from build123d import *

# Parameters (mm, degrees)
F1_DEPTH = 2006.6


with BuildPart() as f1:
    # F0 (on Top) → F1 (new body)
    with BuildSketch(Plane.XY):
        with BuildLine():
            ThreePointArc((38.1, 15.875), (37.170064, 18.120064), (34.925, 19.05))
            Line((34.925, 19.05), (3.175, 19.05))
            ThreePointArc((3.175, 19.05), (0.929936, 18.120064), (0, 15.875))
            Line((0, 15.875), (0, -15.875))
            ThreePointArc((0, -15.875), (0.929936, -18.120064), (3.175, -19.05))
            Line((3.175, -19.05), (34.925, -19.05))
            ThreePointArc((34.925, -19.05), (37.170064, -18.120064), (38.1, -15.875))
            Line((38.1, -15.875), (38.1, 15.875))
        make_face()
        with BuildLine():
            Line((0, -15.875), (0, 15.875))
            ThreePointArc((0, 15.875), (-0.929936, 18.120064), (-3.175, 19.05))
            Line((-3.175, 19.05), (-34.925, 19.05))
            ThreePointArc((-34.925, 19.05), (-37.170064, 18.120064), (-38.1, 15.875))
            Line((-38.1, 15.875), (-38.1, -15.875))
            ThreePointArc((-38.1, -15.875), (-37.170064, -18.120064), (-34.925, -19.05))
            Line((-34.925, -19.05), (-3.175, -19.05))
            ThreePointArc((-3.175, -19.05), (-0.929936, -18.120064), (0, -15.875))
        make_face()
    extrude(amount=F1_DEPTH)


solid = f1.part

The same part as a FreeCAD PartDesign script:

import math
import FreeCAD as App
import Part
import Sketcher

V = App.Vector
Q = App.Units.Quantity

doc = App.newDocument("Part")
body = doc.addObject("PartDesign::Body", "Body")

sketch1 = body.newObject("Sketcher::SketchObject", "Sketch")
sketch1.AttachmentSupport = (doc.getObject("XY_Plane"), [""])
sketch1.MapMode = "FlatFace"
sketch1.addGeometry([
    Part.ArcOfCircle(Part.Circle(V(34.9, 15.9, 0), V(0, 0, 1), 3.2), math.radians(0), math.radians(90)),
    Part.LineSegment(V(34.9, 19.1, 0), V(3.2, 19.1, 0)),
    Part.ArcOfCircle(Part.Circle(V(3.2, 15.9, 0), V(0, 0, 1), 3.2), math.radians(90), math.radians(180)),
    Part.ArcOfCircle(Part.Circle(V(-3.2, 15.9, 0), V(0, 0, 1), 3.2), math.radians(0), math.radians(90)),
    Part.LineSegment(V(-3.2, 19.1, 0), V(-34.9, 19.1, 0)),
    Part.ArcOfCircle(Part.Circle(V(-34.9, 15.9, 0), V(0, 0, 1), 3.2), math.radians(90), math.radians(180)),
    Part.LineSegment(V(-38.1, 15.9, 0), V(-38.1, -15.9, 0)),
    Part.ArcOfCircle(Part.Circle(V(-34.9, -15.9, 0), V(0, 0, 1), 3.2), math.radians(-180), math.radians(-90)),
    Part.LineSegment(V(-34.9, -19.1, 0), V(-3.2, -19.1, 0)),
    Part.ArcOfCircle(Part.Circle(V(-3.2, -15.9, 0), V(0, 0, 1), 3.2), math.radians(-90), math.radians(0)),
    Part.ArcOfCircle(Part.Circle(V(3.2, -15.9, 0), V(0, 0, 1), 3.2), math.radians(-180), math.radians(-90)),
    Part.LineSegment(V(3.2, -19.1, 0), V(34.9, -19.1, 0)),
    Part.ArcOfCircle(Part.Circle(V(34.9, -15.9, 0), V(0, 0, 1), 3.2), math.radians(-90), math.radians(0)),
    Part.LineSegment(V(38.1, -15.9, 0), V(38.1, 15.9, 0)),
], False)
sketch1.addConstraint([
    Sketcher.Constraint("Tangent", 0, 2, 1, 1),
    Sketcher.Constraint("Tangent", 1, 2, 2, 1),
    Sketcher.Constraint("Tangent", 2, 2, 3, 1),
    Sketcher.Constraint("Tangent", 3, 2, 4, 1),
    Sketcher.Constraint("Tangent", 4, 2, 5, 1),
    Sketcher.Constraint("Tangent", 5, 2, 6, 1),
    Sketcher.Constraint("Tangent", 6, 2, 7, 1),
    Sketcher.Constraint("Tangent", 7, 2, 8, 1),
    Sketcher.Constraint("Tangent", 8, 2, 9, 1),
    Sketcher.Constraint("Tangent", 9, 2, 10, 1),
    Sketcher.Constraint("Tangent", 10, 2, 11, 1),
    Sketcher.Constraint("Tangent", 11, 2, 12, 1),
    Sketcher.Constraint("Tangent", 12, 2, 13, 1),
    Sketcher.Constraint("Tangent", 13, 2, 0, 1),
    Sketcher.Constraint("Horizontal", 1),
    Sketcher.Constraint("Horizontal", 4),
    Sketcher.Constraint("Vertical", 6),
    Sketcher.Constraint("Horizontal", 8),
    Sketcher.Constraint("Horizontal", 11),
    Sketcher.Constraint("Vertical", 13),
    Sketcher.Constraint("Equal", 0, 2),
    Sketcher.Constraint("Equal", 2, 3),
    Sketcher.Constraint("Equal", 3, 5),
    Sketcher.Constraint("Equal", 5, 7),
    Sketcher.Constraint("Equal", 7, 9),
    Sketcher.Constraint("Equal", 9, 10),
    Sketcher.Constraint("Equal", 10, 12),
    Sketcher.Constraint("Symmetric", 0, 3, 7, 3, -1, 1),
    Sketcher.Constraint("Symmetric", 3, 3, 10, 3, -1, 1),
    Sketcher.Constraint("Symmetric", 2, 3, 3, 3, -2),
    Sketcher.Constraint("Equal", 11, 6),
    Sketcher.Constraint("Radius", 0, Q("0.125 in")),
    Sketcher.Constraint("DistanceX", 1, 2, 1, 1, Q("1.25 in")),
])
pad1 = body.newObject("PartDesign::Pad", "Pad")
pad1.Profile = sketch1
pad1.Length = Q("79 in")

doc.recompute()
